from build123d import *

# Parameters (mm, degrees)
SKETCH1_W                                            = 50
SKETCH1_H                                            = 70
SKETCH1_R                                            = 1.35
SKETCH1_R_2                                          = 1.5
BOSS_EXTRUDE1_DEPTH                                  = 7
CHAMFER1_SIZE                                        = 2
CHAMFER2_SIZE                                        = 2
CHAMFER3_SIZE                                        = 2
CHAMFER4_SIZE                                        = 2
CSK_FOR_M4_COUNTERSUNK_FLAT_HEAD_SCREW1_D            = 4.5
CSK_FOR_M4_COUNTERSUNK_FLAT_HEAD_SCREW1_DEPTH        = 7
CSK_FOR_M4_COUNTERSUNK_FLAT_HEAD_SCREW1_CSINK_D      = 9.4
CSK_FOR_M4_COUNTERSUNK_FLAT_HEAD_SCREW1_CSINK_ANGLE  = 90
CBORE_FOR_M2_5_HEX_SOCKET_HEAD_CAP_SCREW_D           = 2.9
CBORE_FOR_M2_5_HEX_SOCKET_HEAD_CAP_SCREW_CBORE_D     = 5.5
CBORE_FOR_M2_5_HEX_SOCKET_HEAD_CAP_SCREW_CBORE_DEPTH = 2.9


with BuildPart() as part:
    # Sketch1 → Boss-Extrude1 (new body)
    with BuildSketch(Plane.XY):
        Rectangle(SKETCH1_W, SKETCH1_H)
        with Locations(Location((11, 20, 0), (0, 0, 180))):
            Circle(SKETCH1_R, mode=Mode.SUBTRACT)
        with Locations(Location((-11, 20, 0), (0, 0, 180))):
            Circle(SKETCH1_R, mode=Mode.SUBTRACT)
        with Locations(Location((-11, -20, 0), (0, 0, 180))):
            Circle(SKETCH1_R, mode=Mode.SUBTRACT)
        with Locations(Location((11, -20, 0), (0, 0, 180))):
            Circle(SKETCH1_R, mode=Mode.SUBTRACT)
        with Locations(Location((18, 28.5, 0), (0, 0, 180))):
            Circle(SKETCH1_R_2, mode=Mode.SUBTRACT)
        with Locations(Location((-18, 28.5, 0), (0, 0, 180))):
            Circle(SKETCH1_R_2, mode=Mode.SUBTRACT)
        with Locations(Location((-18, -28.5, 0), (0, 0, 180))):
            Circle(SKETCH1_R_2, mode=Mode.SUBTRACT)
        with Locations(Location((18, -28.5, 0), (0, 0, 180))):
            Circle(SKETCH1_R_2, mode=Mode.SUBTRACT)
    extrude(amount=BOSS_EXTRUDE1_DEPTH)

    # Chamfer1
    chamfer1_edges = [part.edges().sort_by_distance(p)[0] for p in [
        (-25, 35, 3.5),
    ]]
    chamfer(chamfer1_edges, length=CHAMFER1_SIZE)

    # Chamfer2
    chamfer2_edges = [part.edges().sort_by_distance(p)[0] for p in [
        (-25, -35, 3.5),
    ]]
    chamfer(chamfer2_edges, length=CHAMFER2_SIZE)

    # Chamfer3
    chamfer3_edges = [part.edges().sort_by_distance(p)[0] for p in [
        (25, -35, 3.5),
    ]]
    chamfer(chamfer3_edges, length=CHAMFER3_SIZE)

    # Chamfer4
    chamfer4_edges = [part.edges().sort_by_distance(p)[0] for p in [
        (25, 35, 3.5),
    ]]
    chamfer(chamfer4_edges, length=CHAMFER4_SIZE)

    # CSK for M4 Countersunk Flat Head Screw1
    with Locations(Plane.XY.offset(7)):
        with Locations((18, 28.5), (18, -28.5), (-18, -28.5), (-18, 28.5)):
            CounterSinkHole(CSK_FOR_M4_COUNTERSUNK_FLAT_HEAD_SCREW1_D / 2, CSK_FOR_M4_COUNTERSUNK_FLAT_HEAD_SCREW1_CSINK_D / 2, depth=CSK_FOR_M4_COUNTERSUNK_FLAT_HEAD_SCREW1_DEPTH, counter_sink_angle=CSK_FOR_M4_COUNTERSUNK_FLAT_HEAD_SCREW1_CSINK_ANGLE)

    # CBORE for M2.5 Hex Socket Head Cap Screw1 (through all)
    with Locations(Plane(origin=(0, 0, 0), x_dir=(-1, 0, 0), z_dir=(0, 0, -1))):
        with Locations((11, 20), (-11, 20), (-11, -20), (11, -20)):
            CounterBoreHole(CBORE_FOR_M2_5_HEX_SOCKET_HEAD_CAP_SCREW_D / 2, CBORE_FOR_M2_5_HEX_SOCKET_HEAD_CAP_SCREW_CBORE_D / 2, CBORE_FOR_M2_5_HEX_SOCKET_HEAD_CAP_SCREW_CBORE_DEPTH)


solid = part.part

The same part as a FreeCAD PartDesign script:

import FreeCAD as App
import Part
import Sketcher

V = App.Vector
Q = App.Units.Quantity


def edges_at(feature, points):
    """Names of the edges that pass closest to the given points."""
    edges = feature.Shape.Edges
    near = lambda p: min(range(len(edges)), key=lambda i: edges[i].distToShape(Part.Vertex(*p))[0])
    return sorted({f"Edge{near(p) + 1}" for p in points})


def add_polygon(sketch, points):
    """Adds a closed chain of lines whose ends are joined by coincident constraints."""
    first, n = sketch.GeometryCount, len(points)
    for a, b in zip(points, points[1:] + points[:1]):
        sketch.addGeometry(Part.LineSegment(App.Vector(*a, 0), App.Vector(*b, 0)), False)
    for i in range(n):
        sketch.addConstraint(Sketcher.Constraint("Coincident", first + i, 2, first + (i + 1) % n, 1))

doc = App.newDocument("Part")
body = doc.addObject("PartDesign::Body", "Body")

# Sketch on XY plane
sketch1 = body.newObject("Sketcher::SketchObject", "Sketch")
sketch1.AttachmentSupport = (doc.getObject("XY_Plane"), [""])
sketch1.MapMode = "FlatFace"
add_polygon(sketch1, [(-25, 35), (-25, -35), (25, -35), (25, 35)])  # lines 0-3
sketch1.addGeometry(Part.Circle(V(-18, -28.5, 0), V(0, 0, 1), 1.5), False)  # 4
sketch1.addGeometry(Part.Circle(V(-11, -20, 0), V(0, 0, 1), 1.35), False)  # 5
sketch1.addGeometry(Part.Circle(V(18, -28.5, 0), V(0, 0, 1), 1.5), False)  # 6
sketch1.addGeometry(Part.Circle(V(11, -20, 0), V(0, 0, 1), 1.35), False)  # 7
sketch1.addGeometry(Part.Circle(V(-11, 20, 0), V(0, 0, 1), 1.35), False)  # 8
sketch1.addGeometry(Part.Circle(V(-18, 28.5, 0), V(0, 0, 1), 1.5), False)  # 9
sketch1.addGeometry(Part.Circle(V(11, 20, 0), V(0, 0, 1), 1.35), False)  # 10
sketch1.addGeometry(Part.Circle(V(18, 28.5, 0), V(0, 0, 1), 1.5), False)  # 11
sketch1.addConstraint(Sketcher.Constraint("Vertical", 0))
sketch1.addConstraint(Sketcher.Constraint("Horizontal", 1))
sketch1.addConstraint(Sketcher.Constraint("Vertical", 2))
sketch1.addConstraint(Sketcher.Constraint("Horizontal", 3))
sketch1.addConstraint(Sketcher.Constraint("Equal", 4, 6))
sketch1.addConstraint(Sketcher.Constraint("Equal", 5, 7))
sketch1.addConstraint(Sketcher.Constraint("Equal", 7, 8))
sketch1.addConstraint(Sketcher.Constraint("Equal", 6, 9))
sketch1.addConstraint(Sketcher.Constraint("Equal", 8, 10))
sketch1.addConstraint(Sketcher.Constraint("Equal", 9, 11))
sketch1.addConstraint(Sketcher.Constraint("Symmetric", 7, 3, 8, 3, -1, 1))
sketch1.addConstraint(Sketcher.Constraint("Symmetric", 6, 3, 9, 3, -1, 1))
sketch1.addConstraint(Sketcher.Constraint("Symmetric", 5, 3, 10, 3, -1, 1))
sketch1.addConstraint(Sketcher.Constraint("Symmetric", 4, 3, 11, 3, -1, 1))
sketch1.addConstraint(Sketcher.Constraint("Symmetric", 0, 2, 2, 2, -1, 1))
sketch1.addConstraint(Sketcher.Constraint("Symmetric", 4, 3, 6, 3, -2))
sketch1.addConstraint(Sketcher.Constraint("Symmetric", 5, 3, 7, 3, -2))
sketch1.addConstraint(Sketcher.Constraint("Diameter", 4, Q("3 mm")))
sketch1.addConstraint(Sketcher.Constraint("Diameter", 5, Q("2.7 mm")))
sketch1.addConstraint(Sketcher.Constraint("DistanceX", 1, 1, 1, 2, Q("50 mm")))
sketch1.addConstraint(Sketcher.Constraint("DistanceY", 0, 2, 0, 1, Q("70 mm")))
sketch1.addConstraint(Sketcher.Constraint("DistanceX", 4, 3, -1, 1, Q("18 mm")))
sketch1.addConstraint(Sketcher.Constraint("DistanceX", 5, 3, -1, 1, Q("11 mm")))
sketch1.addConstraint(Sketcher.Constraint("DistanceY", 5, 3, -1, 1, Q("20 mm")))
sketch1.addConstraint(Sketcher.Constraint("DistanceY", 4, 3, 9, 3, Q("57 mm")))
pad1 = body.newObject("PartDesign::Pad", "Pad")
pad1.Profile = sketch1
pad1.Length = 7
doc.recompute()

chamfer = body.newObject("PartDesign::Chamfer", "Chamfer")
chamfer.Base = (pad1, edges_at(pad1, [(-25, 35, 3.5)]))
chamfer.Size = 2
doc.recompute()

chamfer2 = body.newObject("PartDesign::Chamfer", "Chamfer001")
chamfer2.Base = (chamfer, edges_at(chamfer, [(-25, -35, 3.5)]))
chamfer2.Size = 2
doc.recompute()

chamfer3 = body.newObject("PartDesign::Chamfer", "Chamfer002")
chamfer3.Base = (chamfer2, edges_at(chamfer2, [(25, -35, 3.5)]))
chamfer3.Size = 2
doc.recompute()

chamfer4 = body.newObject("PartDesign::Chamfer", "Chamfer003")
chamfer4.Base = (chamfer3, edges_at(chamfer3, [(25, 35, 3.5)]))
chamfer4.Size = 2

# Sketch on XY plane
sketch2 = body.newObject("Sketcher::SketchObject", "Sketch001")
sketch2.AttachmentSupport = (doc.getObject("XY_Plane"), [""])
sketch2.MapMode = "FlatFace"
sketch2.AttachmentOffset = App.Placement(V(0, 0, 7), App.Rotation())
sketch2.addGeometry(Part.Circle(V(18, 28.5, 0), V(0, 0, 1), 2.25), False)
sketch2.addGeometry(Part.Circle(V(18, -28.5, 0), V(0, 0, 1), 2.25), False)
sketch2.addGeometry(Part.Circle(V(-18, -28.5, 0), V(0, 0, 1), 2.25), False)
sketch2.addGeometry(Part.Circle(V(-18, 28.5, 0), V(0, 0, 1), 2.25), False)
sketch2.addConstraint(Sketcher.Constraint("Equal", 0, 1))
sketch2.addConstraint(Sketcher.Constraint("Equal", 1, 2))
sketch2.addConstraint(Sketcher.Constraint("Equal", 2, 3))
sketch2.addConstraint(Sketcher.Constraint("Symmetric", 0, 3, 2, 3, -1, 1))
sketch2.addConstraint(Sketcher.Constraint("Symmetric", 1, 3, 3, 3, -1, 1))
sketch2.addConstraint(Sketcher.Constraint("Symmetric", 1, 3, 2, 3, -2))
sketch2.addConstraint(Sketcher.Constraint("Diameter", 0, Q("4.5 mm")))
sketch2.addConstraint(Sketcher.Constraint("DistanceX", -1, 1, 0, 3, Q("18 mm")))
sketch2.addConstraint(Sketcher.Constraint("DistanceY", 1, 3, 0, 3, Q("57 mm")))
doc.recompute()
hole = body.newObject("PartDesign::Hole", "Hole")
hole.Profile = sketch2
hole.ThreadType = "None"
hole.Diameter = 4.5
hole.DepthType = "Dimension"
hole.Depth = 7
hole.DrillPoint = "Flat"
hole.HoleCutType = "Countersink"
hole.HoleCutDiameter = 9.4
hole.HoleCutCountersinkAngle = 90

# Sketch on XY plane
sketch3 = body.newObject("Sketcher::SketchObject", "Sketch002")
sketch3.AttachmentSupport = (doc.getObject("XY_Plane"), [""])
sketch3.MapMode = "FlatFace"
sketch3.addGeometry(Part.Circle(V(-11, 20, 0), V(0, 0, 1), 1.45), False)
sketch3.addGeometry(Part.Circle(V(11, 20, 0), V(0, 0, 1), 1.45), False)
sketch3.addGeometry(Part.Circle(V(11, -20, 0), V(0, 0, 1), 1.45), False)
sketch3.addGeometry(Part.Circle(V(-11, -20, 0), V(0, 0, 1), 1.45), False)
sketch3.addConstraint(Sketcher.Constraint("Equal", 0, 1))
sketch3.addConstraint(Sketcher.Constraint("Equal", 1, 2))
sketch3.addConstraint(Sketcher.Constraint("Equal", 2, 3))
sketch3.addConstraint(Sketcher.Constraint("Symmetric", 0, 3, 2, 3, -1, 1))
sketch3.addConstraint(Sketcher.Constraint("Symmetric", 1, 3, 3, 3, -1, 1))
sketch3.addConstraint(Sketcher.Constraint("Symmetric", 0, 3, 1, 3, -2))
sketch3.addConstraint(Sketcher.Constraint("Diameter", 0, Q("2.9 mm")))
sketch3.addConstraint(Sketcher.Constraint("DistanceX", 0, 3, -1, 1, Q("11 mm")))
sketch3.addConstraint(Sketcher.Constraint("DistanceY", -1, 1, 0, 3, Q("20 mm")))
doc.recompute()
hole2 = body.newObject("PartDesign::Hole", "Hole001")
hole2.Profile = sketch3
hole2.ThreadType = "None"
hole2.Diameter = 2.9
hole2.DepthType = "ThroughAll"
hole2.HoleCutType = "Counterbore"
hole2.HoleCutDiameter = 5.5
hole2.HoleCutDepth = 2.9
hole2.Reversed = True

doc.recompute()
